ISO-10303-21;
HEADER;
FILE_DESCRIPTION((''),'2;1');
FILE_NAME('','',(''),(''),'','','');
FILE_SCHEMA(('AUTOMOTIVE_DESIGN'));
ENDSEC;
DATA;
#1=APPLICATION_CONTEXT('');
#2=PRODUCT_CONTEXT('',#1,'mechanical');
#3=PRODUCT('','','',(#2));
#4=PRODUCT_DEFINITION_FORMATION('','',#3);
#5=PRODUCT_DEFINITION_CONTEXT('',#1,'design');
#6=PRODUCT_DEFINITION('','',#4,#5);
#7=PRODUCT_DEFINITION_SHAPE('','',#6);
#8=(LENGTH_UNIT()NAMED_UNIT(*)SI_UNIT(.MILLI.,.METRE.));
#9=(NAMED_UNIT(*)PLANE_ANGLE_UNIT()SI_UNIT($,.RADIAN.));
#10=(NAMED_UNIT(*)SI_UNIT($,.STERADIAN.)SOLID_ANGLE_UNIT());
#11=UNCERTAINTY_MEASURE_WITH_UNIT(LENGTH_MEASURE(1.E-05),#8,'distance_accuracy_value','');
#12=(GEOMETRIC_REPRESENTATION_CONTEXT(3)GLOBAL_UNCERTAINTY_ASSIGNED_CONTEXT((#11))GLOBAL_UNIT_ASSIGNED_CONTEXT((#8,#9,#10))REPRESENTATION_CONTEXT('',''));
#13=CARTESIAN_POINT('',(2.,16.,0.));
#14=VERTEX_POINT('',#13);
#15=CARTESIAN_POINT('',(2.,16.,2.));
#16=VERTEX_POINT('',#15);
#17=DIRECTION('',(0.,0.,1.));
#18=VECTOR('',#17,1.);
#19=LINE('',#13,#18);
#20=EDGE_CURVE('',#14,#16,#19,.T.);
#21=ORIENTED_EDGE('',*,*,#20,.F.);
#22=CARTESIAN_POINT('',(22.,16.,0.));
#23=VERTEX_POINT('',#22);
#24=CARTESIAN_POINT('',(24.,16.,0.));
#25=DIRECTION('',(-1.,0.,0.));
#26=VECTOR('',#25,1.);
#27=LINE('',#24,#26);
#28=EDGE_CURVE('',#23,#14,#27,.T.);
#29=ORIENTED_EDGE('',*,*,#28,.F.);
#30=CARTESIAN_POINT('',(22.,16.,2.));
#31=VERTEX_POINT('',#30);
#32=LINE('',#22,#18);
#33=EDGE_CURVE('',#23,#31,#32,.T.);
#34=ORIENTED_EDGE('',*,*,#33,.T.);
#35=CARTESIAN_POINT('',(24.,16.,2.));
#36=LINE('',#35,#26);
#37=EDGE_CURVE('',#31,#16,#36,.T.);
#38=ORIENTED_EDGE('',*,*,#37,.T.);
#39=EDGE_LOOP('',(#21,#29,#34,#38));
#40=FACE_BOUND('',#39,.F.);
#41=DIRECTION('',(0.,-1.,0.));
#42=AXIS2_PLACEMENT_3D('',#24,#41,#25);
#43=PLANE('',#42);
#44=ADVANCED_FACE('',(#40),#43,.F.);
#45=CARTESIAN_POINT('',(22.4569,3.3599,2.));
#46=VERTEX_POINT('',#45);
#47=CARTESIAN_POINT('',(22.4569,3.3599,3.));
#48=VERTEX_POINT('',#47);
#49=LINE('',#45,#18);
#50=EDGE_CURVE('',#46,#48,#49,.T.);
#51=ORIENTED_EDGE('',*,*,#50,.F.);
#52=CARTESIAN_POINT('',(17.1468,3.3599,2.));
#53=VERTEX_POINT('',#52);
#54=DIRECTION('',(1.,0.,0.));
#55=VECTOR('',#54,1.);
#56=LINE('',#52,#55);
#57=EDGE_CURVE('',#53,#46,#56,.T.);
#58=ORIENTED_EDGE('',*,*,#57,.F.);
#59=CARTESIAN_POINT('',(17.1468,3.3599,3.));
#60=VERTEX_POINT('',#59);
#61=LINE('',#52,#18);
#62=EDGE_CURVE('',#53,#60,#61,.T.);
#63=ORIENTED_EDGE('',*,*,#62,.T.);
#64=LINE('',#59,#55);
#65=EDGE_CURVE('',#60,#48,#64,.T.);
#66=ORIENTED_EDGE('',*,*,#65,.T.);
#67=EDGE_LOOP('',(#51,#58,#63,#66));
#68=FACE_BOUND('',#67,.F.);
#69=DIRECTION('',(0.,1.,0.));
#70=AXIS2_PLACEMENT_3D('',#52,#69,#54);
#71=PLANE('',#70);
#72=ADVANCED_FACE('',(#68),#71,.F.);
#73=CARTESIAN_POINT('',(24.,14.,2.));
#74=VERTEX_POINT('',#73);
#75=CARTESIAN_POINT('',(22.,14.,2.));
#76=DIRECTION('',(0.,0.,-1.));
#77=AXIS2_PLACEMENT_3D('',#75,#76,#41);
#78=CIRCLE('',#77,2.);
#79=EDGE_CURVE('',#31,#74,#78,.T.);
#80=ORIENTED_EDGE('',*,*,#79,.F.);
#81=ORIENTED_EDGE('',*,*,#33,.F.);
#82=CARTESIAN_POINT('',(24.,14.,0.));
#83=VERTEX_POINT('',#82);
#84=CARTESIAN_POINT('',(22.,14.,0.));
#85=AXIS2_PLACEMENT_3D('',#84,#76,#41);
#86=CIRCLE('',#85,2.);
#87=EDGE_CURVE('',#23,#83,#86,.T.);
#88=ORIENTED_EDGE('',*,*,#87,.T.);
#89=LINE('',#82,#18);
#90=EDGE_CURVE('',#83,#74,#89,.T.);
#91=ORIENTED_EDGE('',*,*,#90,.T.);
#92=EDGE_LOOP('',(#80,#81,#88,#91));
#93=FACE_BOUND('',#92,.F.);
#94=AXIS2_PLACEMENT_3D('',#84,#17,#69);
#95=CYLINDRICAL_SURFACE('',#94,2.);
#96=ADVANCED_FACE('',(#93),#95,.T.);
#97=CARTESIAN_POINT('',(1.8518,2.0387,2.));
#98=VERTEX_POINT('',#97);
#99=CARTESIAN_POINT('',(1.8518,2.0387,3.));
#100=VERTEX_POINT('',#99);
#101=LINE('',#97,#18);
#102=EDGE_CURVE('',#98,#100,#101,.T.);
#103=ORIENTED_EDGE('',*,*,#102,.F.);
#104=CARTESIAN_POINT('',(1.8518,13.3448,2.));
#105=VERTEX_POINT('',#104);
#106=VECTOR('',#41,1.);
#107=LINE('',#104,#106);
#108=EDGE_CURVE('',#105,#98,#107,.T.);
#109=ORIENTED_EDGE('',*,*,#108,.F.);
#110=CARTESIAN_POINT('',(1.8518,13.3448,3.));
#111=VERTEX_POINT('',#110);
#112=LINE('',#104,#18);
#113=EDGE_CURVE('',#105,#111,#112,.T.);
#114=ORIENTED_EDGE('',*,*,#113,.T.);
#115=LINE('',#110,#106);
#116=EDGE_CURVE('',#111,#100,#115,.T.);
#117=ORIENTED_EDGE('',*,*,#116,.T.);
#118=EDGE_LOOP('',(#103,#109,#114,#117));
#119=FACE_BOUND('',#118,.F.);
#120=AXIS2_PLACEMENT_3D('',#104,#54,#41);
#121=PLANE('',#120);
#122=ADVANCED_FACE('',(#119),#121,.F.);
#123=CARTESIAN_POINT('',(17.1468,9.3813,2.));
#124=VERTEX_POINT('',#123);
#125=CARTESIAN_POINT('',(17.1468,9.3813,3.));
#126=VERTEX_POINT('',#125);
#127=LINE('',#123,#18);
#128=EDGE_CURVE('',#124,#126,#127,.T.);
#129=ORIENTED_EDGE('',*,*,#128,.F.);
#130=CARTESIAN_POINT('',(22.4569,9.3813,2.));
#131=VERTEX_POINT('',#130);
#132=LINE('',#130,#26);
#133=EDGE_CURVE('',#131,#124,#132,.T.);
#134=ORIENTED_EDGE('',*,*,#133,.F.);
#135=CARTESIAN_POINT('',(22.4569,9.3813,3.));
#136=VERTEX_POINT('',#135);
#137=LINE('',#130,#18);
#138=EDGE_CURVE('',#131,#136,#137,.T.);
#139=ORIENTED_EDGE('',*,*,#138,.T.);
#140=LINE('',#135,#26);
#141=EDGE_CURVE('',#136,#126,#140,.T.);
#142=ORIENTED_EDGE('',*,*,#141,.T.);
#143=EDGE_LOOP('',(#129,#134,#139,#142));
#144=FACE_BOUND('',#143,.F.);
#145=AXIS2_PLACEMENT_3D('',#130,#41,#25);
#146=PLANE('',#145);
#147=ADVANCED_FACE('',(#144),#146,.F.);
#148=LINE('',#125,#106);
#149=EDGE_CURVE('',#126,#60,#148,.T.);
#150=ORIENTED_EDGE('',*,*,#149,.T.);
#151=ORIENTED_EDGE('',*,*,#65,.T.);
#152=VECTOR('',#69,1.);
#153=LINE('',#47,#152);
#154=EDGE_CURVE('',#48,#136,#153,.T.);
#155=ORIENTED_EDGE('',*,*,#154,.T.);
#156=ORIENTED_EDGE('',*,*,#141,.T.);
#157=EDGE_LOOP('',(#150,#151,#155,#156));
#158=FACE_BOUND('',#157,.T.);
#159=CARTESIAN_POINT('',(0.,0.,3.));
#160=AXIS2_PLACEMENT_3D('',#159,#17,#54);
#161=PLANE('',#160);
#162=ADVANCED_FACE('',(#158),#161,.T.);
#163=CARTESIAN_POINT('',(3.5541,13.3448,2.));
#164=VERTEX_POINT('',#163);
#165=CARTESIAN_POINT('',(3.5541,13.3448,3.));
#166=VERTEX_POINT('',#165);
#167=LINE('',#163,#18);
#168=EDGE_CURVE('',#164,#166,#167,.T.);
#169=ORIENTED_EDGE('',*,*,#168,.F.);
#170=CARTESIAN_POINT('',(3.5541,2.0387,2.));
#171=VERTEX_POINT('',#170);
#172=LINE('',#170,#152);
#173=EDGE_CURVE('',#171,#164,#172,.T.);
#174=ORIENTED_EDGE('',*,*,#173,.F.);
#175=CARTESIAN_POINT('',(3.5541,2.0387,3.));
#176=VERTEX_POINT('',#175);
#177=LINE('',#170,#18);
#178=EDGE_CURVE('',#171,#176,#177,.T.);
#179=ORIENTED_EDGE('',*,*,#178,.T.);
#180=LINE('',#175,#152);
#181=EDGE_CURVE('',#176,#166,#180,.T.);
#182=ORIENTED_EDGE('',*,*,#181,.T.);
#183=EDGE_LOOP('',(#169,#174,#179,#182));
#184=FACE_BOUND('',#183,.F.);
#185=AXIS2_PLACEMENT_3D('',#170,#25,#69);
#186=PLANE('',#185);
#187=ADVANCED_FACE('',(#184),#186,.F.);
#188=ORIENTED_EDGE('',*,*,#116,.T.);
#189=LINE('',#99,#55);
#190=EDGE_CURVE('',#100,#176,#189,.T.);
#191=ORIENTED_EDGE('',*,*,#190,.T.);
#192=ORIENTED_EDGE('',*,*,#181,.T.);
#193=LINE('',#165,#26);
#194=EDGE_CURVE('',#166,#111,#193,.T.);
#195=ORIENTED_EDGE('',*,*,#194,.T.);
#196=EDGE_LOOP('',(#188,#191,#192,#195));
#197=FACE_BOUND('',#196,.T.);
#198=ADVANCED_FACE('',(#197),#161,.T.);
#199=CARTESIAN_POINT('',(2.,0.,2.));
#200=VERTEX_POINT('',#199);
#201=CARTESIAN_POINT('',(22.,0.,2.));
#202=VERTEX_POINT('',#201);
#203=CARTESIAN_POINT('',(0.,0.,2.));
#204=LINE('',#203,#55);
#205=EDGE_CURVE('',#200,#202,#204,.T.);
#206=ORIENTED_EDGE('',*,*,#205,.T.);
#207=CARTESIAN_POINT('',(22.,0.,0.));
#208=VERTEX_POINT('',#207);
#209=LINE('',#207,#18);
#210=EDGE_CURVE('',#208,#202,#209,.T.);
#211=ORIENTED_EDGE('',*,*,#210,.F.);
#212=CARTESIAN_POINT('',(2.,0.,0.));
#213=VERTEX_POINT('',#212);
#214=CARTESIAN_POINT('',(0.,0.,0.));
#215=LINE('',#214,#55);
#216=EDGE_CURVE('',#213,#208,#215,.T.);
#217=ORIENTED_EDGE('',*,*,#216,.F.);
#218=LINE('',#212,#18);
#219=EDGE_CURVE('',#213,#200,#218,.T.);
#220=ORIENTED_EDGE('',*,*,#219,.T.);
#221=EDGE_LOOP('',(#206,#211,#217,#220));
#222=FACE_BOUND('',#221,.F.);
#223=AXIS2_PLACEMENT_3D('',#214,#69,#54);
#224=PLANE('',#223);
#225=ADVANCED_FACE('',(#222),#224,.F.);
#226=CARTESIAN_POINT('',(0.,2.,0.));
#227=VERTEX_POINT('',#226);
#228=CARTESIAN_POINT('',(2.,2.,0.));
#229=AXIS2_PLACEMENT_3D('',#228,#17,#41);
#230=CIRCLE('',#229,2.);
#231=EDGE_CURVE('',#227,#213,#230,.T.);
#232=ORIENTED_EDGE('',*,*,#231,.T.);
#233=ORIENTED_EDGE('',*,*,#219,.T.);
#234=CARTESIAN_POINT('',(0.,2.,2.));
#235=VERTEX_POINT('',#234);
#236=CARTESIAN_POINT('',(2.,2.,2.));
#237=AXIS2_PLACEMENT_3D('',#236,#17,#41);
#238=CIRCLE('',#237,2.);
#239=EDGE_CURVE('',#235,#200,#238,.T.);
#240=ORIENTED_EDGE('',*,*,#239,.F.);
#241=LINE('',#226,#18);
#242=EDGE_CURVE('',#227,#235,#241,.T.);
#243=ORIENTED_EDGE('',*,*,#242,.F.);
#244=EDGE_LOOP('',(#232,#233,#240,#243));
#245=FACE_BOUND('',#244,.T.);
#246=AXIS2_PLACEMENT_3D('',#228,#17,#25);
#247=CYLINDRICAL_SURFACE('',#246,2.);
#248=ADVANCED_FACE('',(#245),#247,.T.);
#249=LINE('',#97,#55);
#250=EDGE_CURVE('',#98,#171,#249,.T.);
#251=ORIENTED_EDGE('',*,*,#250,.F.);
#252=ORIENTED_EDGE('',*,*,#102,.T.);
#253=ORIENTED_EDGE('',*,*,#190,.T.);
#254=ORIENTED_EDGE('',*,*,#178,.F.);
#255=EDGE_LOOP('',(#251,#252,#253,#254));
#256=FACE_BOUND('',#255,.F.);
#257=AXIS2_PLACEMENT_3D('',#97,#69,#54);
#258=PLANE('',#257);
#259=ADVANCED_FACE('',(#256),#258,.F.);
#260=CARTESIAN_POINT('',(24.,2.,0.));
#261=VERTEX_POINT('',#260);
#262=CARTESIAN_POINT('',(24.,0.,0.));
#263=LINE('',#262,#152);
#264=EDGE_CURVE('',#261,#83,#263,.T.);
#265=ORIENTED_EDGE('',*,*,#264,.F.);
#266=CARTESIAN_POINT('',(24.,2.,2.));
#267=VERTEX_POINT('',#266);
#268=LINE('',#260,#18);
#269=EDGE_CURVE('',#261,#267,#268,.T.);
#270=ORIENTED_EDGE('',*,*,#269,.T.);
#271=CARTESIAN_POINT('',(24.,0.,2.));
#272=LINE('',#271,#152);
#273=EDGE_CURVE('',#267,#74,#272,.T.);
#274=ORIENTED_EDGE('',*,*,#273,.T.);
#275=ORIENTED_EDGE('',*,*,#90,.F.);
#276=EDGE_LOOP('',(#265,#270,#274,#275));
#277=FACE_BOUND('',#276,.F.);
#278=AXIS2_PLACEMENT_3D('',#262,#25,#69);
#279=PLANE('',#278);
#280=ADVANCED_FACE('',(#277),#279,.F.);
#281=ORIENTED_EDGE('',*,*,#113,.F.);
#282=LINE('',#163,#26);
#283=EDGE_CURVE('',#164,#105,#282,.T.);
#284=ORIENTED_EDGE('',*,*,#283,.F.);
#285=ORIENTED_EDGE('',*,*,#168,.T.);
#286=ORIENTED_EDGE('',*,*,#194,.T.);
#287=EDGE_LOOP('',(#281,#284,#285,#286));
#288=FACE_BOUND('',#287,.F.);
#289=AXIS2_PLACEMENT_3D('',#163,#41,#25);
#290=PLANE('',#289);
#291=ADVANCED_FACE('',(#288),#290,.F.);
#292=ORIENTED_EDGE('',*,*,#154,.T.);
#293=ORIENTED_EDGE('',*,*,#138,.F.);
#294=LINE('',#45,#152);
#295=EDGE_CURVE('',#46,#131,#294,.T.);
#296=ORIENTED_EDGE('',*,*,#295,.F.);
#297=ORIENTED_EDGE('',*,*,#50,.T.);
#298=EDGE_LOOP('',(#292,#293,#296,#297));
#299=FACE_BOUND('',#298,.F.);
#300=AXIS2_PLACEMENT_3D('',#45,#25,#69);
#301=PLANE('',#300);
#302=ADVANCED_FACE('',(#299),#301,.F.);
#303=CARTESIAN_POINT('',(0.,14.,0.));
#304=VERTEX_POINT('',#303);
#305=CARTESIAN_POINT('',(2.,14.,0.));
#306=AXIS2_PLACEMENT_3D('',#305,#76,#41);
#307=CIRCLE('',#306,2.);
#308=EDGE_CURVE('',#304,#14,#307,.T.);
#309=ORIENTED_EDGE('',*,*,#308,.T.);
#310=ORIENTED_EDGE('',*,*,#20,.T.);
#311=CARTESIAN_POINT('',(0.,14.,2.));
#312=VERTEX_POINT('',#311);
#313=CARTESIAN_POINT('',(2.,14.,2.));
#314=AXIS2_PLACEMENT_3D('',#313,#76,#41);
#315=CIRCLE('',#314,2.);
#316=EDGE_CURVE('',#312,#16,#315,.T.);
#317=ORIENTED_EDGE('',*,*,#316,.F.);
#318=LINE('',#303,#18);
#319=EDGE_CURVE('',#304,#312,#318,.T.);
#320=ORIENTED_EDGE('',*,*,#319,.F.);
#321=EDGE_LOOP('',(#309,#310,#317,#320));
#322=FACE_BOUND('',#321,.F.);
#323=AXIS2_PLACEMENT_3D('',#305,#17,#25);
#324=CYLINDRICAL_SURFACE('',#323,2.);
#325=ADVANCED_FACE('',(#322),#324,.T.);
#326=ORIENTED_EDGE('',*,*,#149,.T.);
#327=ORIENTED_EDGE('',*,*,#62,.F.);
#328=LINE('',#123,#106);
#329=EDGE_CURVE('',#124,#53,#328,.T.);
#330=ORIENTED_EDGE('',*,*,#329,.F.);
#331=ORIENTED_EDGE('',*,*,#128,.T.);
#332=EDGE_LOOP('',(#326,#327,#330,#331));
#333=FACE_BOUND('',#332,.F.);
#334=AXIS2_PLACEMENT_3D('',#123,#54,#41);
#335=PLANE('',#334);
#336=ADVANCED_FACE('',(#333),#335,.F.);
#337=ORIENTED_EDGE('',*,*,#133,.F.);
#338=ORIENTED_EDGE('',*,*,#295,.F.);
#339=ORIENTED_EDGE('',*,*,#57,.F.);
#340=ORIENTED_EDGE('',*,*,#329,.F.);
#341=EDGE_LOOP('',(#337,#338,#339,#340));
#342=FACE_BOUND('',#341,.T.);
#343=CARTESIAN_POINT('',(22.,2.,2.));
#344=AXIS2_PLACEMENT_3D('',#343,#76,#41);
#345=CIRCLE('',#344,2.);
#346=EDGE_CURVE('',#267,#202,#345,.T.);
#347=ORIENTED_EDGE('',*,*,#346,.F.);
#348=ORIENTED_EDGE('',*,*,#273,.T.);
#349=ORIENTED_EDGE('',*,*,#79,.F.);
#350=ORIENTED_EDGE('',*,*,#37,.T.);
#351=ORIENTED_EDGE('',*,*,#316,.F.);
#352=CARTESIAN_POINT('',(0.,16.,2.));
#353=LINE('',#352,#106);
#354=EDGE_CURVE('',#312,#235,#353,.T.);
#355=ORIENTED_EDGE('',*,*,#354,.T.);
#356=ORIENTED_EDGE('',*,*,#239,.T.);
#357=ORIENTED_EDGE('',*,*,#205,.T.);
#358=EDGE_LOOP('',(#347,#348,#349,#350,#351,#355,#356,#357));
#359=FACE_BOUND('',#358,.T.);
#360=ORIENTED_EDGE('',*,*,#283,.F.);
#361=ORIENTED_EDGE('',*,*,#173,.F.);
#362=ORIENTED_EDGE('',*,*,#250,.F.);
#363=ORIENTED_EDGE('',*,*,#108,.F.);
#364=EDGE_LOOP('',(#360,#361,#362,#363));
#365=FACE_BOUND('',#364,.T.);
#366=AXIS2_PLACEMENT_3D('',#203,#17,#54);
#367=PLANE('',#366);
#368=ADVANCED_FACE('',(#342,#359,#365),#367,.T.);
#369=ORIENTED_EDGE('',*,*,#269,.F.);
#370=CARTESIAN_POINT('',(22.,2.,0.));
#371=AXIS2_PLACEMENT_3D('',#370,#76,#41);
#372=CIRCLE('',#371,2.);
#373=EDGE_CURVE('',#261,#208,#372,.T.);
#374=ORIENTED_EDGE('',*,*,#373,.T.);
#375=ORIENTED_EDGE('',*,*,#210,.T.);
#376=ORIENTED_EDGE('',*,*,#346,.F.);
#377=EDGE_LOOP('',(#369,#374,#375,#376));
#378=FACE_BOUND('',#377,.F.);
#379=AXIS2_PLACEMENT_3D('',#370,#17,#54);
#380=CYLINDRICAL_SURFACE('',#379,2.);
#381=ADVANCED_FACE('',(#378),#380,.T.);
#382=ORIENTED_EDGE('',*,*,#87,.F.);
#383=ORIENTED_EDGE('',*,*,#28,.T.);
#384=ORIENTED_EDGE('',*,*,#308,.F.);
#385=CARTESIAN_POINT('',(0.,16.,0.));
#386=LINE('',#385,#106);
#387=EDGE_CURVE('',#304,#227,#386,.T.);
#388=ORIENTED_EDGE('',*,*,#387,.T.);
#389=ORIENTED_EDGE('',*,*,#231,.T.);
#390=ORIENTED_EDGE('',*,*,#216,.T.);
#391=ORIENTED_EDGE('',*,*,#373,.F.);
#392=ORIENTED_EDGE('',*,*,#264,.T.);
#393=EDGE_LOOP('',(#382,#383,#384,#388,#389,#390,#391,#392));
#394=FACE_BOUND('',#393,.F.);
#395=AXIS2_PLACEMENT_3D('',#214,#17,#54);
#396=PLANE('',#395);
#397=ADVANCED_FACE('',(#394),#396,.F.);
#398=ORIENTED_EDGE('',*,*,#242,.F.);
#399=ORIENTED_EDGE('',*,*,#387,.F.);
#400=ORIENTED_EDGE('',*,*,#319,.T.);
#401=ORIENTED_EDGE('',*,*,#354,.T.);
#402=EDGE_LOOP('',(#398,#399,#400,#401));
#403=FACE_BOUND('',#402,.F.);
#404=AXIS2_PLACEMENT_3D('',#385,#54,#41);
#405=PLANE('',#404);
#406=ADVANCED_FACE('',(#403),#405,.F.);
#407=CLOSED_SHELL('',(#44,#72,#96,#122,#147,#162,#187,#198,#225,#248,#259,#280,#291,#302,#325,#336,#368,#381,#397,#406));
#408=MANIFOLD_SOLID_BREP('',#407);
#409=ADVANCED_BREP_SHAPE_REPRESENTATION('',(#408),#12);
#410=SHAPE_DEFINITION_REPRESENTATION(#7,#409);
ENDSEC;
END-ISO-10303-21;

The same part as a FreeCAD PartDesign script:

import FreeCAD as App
import Part
import Sketcher
from FreeCAD import Vector
Q = App.Units.Quantity


def edges_at(feature, points):
    """Names of the edges that pass closest to the given points."""
    edges = feature.Shape.Edges
    near = lambda p: min(range(len(edges)), key=lambda i: edges[i].distToShape(Part.Vertex(*p))[0])
    return sorted({f"Edge{near(p) + 1}" for p in points})


def add_polygon(sketch, points):
    """Adds a closed chain of lines whose ends are joined by coincident constraints."""
    first, n = sketch.GeometryCount, len(points)
    for a, b in zip(points, points[1:] + points[:1]):
        sketch.addGeometry(Part.LineSegment(App.Vector(*a, 0), App.Vector(*b, 0)), False)
    for i in range(n):
        sketch.addConstraint(Sketcher.Constraint("Coincident", first + i, 2, first + (i + 1) % n, 1))

doc = App.newDocument("Part")
body = doc.addObject("PartDesign::Body", "Body")

# Sketch on XY plane
sketch1 = doc.addObject("Sketcher::SketchObject", "Sketch")
body.addObject(sketch1)
sketch1.AttachmentSupport = (doc.XY_Plane, [""])
sketch1.MapMode = "FlatFace"
add_polygon(sketch1, [(0, 16), (0, 0), (24, 0), (24, 16)])  # lines 0-3
sketch1.addConstraint(Sketcher.Constraint("Vertical", 0))
sketch1.addConstraint(Sketcher.Constraint("Horizontal", 1))
sketch1.addConstraint(Sketcher.Constraint("Vertical", 2))
sketch1.addConstraint(Sketcher.Constraint("Horizontal", 3))
sketch1.addConstraint(Sketcher.Constraint("Coincident", 0, 2, -1, 1))
sketch1.addConstraint(Sketcher.Constraint("DistanceX", 1, 1, 1, 2, Q("24 mm")))
sketch1.addConstraint(Sketcher.Constraint("DistanceY", 0, 2, 0, 1, Q("16 mm")))
pad1 = doc.addObject("PartDesign::Pad", "Pad")
body.addObject(pad1)
pad1.Profile = sketch1
pad1.Length = 2
doc.recompute()

fillet = doc.addObject("PartDesign::Fillet", "Fillet")
body.addObject(fillet)
fillet.Base = (pad1, edges_at(pad1, [
    (0, 16, 1),
    (0, 0, 1),
    (24, 0, 1),
    (24, 16, 1),
]))
fillet.Radius = 2

# Sketch on XY plane
sketch2 = doc.addObject("Sketcher::SketchObject", "Sketch001")
body.addObject(sketch2)
sketch2.AttachmentSupport = (doc.XY_Plane, [""])
sketch2.MapMode = "FlatFace"
sketch2.AttachmentOffset = App.Placement(Vector(0, 0, 2), App.Rotation())
add_polygon(sketch2, [(3.5541, 13.3448), (1.8518, 13.3448), (1.8518, 2.0387), (3.5541, 2.0387)])  # lines 0-3
add_polygon(sketch2, [(22.4569, 9.3813), (17.1468, 9.3813), (17.1468, 3.3599), (22.4569, 3.3599)])  # lines 4-7
sketch2.addConstraint(Sketcher.Constraint("Horizontal", 0))
sketch2.addConstraint(Sketcher.Constraint("Vertical", 1))
sketch2.addConstraint(Sketcher.Constraint("Horizontal", 2))
sketch2.addConstraint(Sketcher.Constraint("Vertical", 3))
sketch2.addConstraint(Sketcher.Constraint("Horizontal", 4))
sketch2.addConstraint(Sketcher.Constraint("Vertical", 5))
sketch2.addConstraint(Sketcher.Constraint("Horizontal", 6))
sketch2.addConstraint(Sketcher.Constraint("Vertical", 7))
sketch2.addConstraint(Sketcher.Constraint("DistanceX", 4, 2, 4, 1, Q("5.31 mm")))
sketch2.addConstraint(Sketcher.Constraint("DistanceY", 1, 2, 1, 1, Q("11.306 mm")))
sketch2.addConstraint(Sketcher.Constraint("DistanceY", -1, 1, 5, 2, Q("3.36 mm")))
sketch2.addConstraint(Sketcher.Constraint("DistanceX", 0, 2, 0, 1, Q("1.7023 mm")))
sketch2.addConstraint(Sketcher.Constraint("DistanceY", 5, 2, 5, 1, Q("6.0214 mm")))
sketch2.addConstraint(Sketcher.Constraint("DistanceX", -1, 1, 2, 2, Q("3.554 mm")))
sketch2.addConstraint(Sketcher.Constraint("DistanceX", -1, 1, 6, 2, Q("22.457 mm")))
sketch2.addConstraint(Sketcher.Constraint("DistanceY", 5, 2, 3, 2, Q("9.985 mm")))
pad2 = doc.addObject("PartDesign::Pad", "Pad001")
body.addObject(pad2)
pad2.Profile = sketch2
pad2.Length = 1

doc.recompute()
